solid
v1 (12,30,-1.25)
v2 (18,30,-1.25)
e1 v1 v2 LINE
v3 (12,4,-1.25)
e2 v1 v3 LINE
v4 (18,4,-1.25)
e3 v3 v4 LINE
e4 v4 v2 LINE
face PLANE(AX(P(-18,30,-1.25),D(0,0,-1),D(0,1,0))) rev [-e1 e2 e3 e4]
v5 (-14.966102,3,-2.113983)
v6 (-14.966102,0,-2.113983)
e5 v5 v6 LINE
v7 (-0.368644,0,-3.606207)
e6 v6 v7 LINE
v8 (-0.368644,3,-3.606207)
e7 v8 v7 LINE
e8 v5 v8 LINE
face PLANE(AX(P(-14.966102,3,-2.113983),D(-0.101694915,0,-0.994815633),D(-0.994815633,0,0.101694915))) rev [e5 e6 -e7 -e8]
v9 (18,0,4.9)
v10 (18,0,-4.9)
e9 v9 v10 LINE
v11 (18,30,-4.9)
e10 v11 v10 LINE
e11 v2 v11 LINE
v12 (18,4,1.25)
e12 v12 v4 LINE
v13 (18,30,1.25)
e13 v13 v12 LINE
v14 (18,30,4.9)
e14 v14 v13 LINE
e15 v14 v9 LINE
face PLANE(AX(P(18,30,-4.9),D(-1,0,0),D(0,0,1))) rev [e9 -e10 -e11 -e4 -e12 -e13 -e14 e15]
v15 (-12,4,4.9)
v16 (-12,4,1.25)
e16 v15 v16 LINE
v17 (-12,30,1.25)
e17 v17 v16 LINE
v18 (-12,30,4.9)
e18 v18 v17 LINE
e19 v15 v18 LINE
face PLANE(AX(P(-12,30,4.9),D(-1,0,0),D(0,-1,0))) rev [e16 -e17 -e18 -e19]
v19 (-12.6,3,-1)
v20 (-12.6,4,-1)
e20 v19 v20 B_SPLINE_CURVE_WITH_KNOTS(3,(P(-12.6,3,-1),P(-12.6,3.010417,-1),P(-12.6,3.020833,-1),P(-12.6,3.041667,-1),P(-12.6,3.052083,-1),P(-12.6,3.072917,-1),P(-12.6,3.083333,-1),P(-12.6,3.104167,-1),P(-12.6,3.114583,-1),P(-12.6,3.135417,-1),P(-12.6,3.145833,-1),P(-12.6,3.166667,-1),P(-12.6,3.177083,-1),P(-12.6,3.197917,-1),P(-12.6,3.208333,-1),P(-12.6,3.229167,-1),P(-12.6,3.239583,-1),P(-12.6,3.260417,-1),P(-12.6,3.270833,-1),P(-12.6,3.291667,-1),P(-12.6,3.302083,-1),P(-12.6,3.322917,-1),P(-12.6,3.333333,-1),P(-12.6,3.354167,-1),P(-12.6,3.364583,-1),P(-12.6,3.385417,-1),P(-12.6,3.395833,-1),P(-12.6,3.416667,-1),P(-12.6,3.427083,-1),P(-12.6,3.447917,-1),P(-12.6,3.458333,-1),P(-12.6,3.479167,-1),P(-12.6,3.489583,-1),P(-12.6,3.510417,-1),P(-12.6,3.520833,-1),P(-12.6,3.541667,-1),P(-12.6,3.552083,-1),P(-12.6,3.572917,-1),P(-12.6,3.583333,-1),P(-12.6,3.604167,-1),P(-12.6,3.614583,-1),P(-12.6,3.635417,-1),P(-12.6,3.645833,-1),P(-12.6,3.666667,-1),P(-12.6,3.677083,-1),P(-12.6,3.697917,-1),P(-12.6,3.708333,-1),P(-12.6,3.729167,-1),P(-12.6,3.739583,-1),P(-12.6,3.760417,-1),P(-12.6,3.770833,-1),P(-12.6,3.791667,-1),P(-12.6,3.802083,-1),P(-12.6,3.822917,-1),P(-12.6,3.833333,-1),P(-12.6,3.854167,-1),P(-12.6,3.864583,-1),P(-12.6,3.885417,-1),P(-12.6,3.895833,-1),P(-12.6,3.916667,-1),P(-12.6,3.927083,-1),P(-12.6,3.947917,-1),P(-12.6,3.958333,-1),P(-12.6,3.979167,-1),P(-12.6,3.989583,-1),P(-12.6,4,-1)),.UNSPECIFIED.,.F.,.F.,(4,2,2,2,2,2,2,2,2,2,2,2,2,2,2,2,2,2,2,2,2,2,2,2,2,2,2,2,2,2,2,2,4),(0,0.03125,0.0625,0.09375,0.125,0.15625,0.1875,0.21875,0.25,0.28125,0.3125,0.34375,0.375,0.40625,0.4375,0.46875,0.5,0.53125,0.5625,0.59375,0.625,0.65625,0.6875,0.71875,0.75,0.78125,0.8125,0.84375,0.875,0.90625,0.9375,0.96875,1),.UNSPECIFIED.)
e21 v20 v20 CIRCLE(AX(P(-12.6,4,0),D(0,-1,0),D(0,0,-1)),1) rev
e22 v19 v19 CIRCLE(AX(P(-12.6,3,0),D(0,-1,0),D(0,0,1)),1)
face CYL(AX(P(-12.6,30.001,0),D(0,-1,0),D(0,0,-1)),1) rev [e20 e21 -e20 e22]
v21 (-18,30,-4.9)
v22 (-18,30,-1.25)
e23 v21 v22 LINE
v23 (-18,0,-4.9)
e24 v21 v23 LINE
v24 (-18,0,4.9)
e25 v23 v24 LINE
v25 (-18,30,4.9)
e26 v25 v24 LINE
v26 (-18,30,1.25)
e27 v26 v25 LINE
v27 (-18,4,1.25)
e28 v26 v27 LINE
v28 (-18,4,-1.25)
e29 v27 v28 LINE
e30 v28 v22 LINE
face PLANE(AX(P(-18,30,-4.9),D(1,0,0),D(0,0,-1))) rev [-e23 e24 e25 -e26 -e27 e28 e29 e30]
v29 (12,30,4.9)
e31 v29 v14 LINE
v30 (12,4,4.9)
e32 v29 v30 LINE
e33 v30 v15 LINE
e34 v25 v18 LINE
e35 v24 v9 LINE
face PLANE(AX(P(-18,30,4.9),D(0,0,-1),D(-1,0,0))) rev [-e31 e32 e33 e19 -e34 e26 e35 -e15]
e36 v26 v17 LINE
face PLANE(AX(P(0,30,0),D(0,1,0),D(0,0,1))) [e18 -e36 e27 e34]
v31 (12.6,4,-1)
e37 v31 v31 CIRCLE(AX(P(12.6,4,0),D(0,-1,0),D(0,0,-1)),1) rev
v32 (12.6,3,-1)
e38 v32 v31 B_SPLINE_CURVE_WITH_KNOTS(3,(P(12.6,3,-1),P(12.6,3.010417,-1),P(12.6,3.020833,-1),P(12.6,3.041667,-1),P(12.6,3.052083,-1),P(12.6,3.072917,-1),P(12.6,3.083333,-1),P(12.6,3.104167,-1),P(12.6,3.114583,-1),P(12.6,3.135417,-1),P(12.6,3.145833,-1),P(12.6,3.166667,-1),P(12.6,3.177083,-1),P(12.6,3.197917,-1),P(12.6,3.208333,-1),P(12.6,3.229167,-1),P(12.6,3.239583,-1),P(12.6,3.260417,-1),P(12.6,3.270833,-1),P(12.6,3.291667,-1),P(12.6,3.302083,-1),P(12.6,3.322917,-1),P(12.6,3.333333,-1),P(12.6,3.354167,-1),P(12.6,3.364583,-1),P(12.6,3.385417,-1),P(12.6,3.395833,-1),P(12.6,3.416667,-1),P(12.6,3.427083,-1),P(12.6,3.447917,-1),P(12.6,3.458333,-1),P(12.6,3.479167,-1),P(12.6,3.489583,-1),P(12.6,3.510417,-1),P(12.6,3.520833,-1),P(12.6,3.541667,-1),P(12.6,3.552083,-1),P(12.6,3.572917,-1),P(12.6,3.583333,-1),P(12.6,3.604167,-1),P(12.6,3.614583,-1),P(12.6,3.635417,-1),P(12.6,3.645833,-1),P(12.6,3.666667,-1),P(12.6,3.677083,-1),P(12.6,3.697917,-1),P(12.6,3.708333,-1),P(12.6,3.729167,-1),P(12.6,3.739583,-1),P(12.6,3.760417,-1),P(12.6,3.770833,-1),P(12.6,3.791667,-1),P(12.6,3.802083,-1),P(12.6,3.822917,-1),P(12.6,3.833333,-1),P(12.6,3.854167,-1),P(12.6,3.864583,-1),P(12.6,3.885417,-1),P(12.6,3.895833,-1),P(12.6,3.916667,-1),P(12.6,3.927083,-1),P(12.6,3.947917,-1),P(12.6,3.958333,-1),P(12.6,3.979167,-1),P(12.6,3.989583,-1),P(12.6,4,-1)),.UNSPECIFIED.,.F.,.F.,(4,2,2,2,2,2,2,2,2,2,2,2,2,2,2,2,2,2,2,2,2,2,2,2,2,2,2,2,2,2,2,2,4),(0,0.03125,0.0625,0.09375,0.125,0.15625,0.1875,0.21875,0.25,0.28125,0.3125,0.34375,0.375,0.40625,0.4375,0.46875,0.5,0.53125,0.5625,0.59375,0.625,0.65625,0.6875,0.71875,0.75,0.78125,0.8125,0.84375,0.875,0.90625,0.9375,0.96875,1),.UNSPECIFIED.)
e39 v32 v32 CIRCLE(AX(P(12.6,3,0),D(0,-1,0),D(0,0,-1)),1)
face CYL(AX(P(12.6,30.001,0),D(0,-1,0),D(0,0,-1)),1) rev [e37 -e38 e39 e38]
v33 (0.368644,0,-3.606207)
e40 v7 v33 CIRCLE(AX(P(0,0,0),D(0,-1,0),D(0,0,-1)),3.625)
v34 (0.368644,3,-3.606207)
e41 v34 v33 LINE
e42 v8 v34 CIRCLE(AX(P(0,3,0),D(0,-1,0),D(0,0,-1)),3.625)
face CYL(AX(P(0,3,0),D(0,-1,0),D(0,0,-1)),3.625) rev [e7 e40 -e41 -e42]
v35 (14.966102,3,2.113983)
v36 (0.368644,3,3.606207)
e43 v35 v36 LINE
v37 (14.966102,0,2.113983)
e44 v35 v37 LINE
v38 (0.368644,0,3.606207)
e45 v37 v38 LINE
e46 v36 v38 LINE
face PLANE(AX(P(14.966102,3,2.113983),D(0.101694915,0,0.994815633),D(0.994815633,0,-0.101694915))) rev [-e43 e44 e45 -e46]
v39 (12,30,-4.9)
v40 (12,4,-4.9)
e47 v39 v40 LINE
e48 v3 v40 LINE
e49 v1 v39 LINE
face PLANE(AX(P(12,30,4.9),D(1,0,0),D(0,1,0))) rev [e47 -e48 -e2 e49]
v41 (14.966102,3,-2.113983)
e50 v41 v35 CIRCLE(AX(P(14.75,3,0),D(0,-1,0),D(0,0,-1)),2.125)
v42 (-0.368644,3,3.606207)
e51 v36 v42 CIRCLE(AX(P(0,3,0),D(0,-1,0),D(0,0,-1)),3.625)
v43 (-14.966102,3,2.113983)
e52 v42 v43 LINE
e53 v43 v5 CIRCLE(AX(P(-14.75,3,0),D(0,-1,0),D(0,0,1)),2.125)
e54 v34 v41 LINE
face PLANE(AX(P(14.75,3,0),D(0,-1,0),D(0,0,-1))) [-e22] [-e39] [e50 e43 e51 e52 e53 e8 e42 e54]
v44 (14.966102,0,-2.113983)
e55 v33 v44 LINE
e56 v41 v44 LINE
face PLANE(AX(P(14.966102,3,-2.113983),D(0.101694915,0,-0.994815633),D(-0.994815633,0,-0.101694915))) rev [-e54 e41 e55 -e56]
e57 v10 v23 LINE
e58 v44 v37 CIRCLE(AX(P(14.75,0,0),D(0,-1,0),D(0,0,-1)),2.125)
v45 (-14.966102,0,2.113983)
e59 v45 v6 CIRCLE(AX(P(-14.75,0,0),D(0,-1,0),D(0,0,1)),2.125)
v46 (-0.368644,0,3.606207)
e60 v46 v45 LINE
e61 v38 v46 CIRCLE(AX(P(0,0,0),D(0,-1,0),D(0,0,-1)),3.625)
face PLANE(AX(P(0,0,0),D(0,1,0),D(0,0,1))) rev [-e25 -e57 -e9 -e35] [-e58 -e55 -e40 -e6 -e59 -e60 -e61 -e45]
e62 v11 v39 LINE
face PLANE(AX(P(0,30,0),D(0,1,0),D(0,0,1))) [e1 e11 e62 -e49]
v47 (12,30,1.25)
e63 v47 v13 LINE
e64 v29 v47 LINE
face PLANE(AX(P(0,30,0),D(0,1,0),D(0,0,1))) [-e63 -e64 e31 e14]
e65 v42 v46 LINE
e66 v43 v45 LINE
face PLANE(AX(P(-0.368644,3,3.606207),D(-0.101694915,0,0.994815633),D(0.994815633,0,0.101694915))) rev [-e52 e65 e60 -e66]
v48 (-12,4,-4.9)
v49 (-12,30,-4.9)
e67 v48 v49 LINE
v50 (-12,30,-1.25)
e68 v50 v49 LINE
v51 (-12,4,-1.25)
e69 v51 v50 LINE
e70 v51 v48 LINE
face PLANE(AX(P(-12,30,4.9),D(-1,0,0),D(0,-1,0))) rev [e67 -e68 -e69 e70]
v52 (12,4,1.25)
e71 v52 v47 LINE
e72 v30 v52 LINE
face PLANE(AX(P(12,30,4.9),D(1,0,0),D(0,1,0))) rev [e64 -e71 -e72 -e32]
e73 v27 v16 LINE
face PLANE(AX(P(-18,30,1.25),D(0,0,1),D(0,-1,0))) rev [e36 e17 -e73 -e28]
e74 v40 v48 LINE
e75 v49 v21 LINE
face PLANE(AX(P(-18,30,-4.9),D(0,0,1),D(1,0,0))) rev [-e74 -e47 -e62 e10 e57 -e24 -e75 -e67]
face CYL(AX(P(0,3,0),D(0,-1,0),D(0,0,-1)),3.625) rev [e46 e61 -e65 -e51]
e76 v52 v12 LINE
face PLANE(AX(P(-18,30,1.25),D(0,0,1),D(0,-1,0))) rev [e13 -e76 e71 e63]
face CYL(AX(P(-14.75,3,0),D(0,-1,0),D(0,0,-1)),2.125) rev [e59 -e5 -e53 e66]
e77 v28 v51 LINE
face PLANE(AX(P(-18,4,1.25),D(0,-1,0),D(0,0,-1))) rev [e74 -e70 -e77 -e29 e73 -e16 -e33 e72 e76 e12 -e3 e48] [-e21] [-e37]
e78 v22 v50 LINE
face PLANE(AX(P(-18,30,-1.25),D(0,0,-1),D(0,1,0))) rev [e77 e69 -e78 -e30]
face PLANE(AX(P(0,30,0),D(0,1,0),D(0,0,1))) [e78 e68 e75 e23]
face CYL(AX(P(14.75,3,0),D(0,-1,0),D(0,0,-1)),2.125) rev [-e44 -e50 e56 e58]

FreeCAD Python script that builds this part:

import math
import FreeCAD as App
import Part
import Sketcher

V = App.Vector
Q = App.Units.Quantity

doc = App.newDocument("Part")
body = doc.addObject("PartDesign::Body", "Body")

# Sketch on XZ plane
sketch1 = body.newObject("Sketcher::SketchObject", "Sketch")
sketch1.AttachmentSupport = (doc.getObject("XZ_Plane"), [""])
sketch1.MapMode = "FlatFace"
sketch1.addGeometry([
    Part.LineSegment(V(-18, -4.9, 0), V(-18, 4.9, 0)),
    Part.LineSegment(V(-18, 4.9, 0), V(18, 4.9, 0)),
    Part.LineSegment(V(18, 4.9, 0), V(18, -4.9, 0)),
    Part.LineSegment(V(18, -4.9, 0), V(-18, -4.9, 0)),
], False)
sketch1.addConstraint([
    Sketcher.Constraint("Coincident", 0, 2, 1, 1),
    Sketcher.Constraint("Coincident", 1, 2, 2, 1),
    Sketcher.Constraint("Coincident", 2, 2, 3, 1),
    Sketcher.Constraint("Coincident", 3, 2, 0, 1),
    Sketcher.Constraint("Vertical", 0),
    Sketcher.Constraint("Horizontal", 1),
    Sketcher.Constraint("Vertical", 2),
    Sketcher.Constraint("Horizontal", 3),
    Sketcher.Constraint("Symmetric", 0, 2, 2, 2, -1, 1),
    Sketcher.Constraint("DistanceX", 1, 1, 1, 2, Q("36 mm")),
    Sketcher.Constraint("DistanceY", 0, 1, 0, 2, Q("9.8 mm")),
])
pad1 = body.newObject("PartDesign::Pad", "Pad")
pad1.Profile = sketch1
pad1.Length = 30
pad1.Reversed = True

# Sketch on YZ plane
sketch2 = body.newObject("Sketcher::SketchObject", "Sketch001")
sketch2.AttachmentSupport = (doc.getObject("YZ_Plane"), [""])
sketch2.MapMode = "FlatFace"
sketch2.AttachmentOffset = App.Placement(V(0, 0, 18), App.Rotation())
sketch2.addGeometry([
    Part.LineSegment(V(30, 1.25, 0), V(4, 1.25, 0)),
    Part.LineSegment(V(4, 1.25, 0), V(4, -1.25, 0)),
    Part.LineSegment(V(4, -1.25, 0), V(30, -1.25, 0)),
    Part.LineSegment(V(30, -1.25, 0), V(30, 1.25, 0)),
], False)
sketch2.addConstraint([
    Sketcher.Constraint("Coincident", 0, 2, 1, 1),
    Sketcher.Constraint("Coincident", 1, 2, 2, 1),
    Sketcher.Constraint("Coincident", 2, 2, 3, 1),
    Sketcher.Constraint("Coincident", 3, 2, 0, 1),
    Sketcher.Constraint("Horizontal", 0),
    Sketcher.Constraint("Vertical", 1),
    Sketcher.Constraint("Horizontal", 2),
    Sketcher.Constraint("Vertical", 3),
    Sketcher.Constraint("DistanceX", 0, 2, 0, 1, Q("26 mm")),
    Sketcher.Constraint("DistanceY", 1, 2, 1, 1, Q("2.5 mm")),
    Sketcher.Constraint("DistanceX", -1, 1, 0, 2, Q("4 mm")),
    Sketcher.Constraint("DistanceY", -1, 1, 0, 2, Q("1.25 mm")),
])
pocket1 = body.newObject("PartDesign::Pocket", "Pocket")
pocket1.Profile = sketch2
pocket1.Type = "ThroughAll"

# Sketch on XY plane
sketch3 = body.newObject("Sketcher::SketchObject", "Sketch002")
sketch3.AttachmentSupport = (doc.getObject("XY_Plane"), [""])
sketch3.MapMode = "FlatFace"
sketch3.AttachmentOffset = App.Placement(V(0, 0, -4.9), App.Rotation())
sketch3.addGeometry([
    Part.LineSegment(V(12, 30, 0), V(12, 4, 0)),
    Part.LineSegment(V(12, 4, 0), V(-12, 4, 0)),
    Part.LineSegment(V(-12, 4, 0), V(-12, 30, 0)),
    Part.LineSegment(V(-12, 30, 0), V(12, 30, 0)),
], False)
sketch3.addConstraint([
    Sketcher.Constraint("Coincident", 0, 2, 1, 1),
    Sketcher.Constraint("Coincident", 1, 2, 2, 1),
    Sketcher.Constraint("Coincident", 2, 2, 3, 1),
    Sketcher.Constraint("Coincident", 3, 2, 0, 1),
    Sketcher.Constraint("Vertical", 0),
    Sketcher.Constraint("Horizontal", 1),
    Sketcher.Constraint("Vertical", 2),
    Sketcher.Constraint("Horizontal", 3),
    Sketcher.Constraint("DistanceX", 1, 2, 1, 1, Q("24 mm")),
    Sketcher.Constraint("DistanceY", 0, 2, 0, 1, Q("26 mm")),
    Sketcher.Constraint("DistanceX", -1, 1, 0, 2, Q("12 mm")),
    Sketcher.Constraint("DistanceY", -1, 1, 0, 2, Q("4 mm")),
])
pocket2 = body.newObject("PartDesign::Pocket", "Pocket001")
pocket2.Profile = sketch3
pocket2.Type = "ThroughAll"
pocket2.Reversed = True

# Sketch on XZ plane
sketch4 = body.newObject("Sketcher::SketchObject", "Sketch003")
sketch4.AttachmentSupport = (doc.getObject("XZ_Plane"), [""])
sketch4.MapMode = "FlatFace"
sketch4.addGeometry([
    Part.LineSegment(V(14.966102, 2.113983, 0), V(0.368644, 3.606207, 0)),  # 0
    Part.ArcOfCircle(Part.Circle(V(0, 0, 0), V(0, 0, 1), 3.625), math.radians(84.163221), math.radians(95.836779)),  # 1
    Part.LineSegment(V(-0.368644, 3.606207, 0), V(-14.966102, 2.113983, 0)),  # 2
    Part.ArcOfCircle(Part.Circle(V(-14.75, 0, 0), V(0, 0, 1), 2.125), math.radians(95.83678), math.radians(264.16322)),  # 3
    Part.LineSegment(V(-14.966102, -2.113983, 0), V(-0.368644, -3.606207, 0)),  # 4
    Part.ArcOfCircle(Part.Circle(V(0, 0, 0), V(0, 0, 1), 3.625), math.radians(-95.836779), math.radians(-84.163221)),  # 5
    Part.LineSegment(V(0.368644, -3.606207, 0), V(14.966102, -2.113983, 0)),  # 6
    Part.ArcOfCircle(Part.Circle(V(14.75, 0, 0), V(0, 0, 1), 2.125), math.radians(-84.16322), math.radians(84.16322)),  # 7
], False)
sketch4.addConstraint([
    Sketcher.Constraint("Tangent", 0, 2, 1, 1),
    Sketcher.Constraint("Tangent", 1, 2, 2, 1),
    Sketcher.Constraint("Tangent", 2, 2, 3, 1),
    Sketcher.Constraint("Tangent", 3, 2, 4, 1),
    Sketcher.Constraint("Tangent", 4, 2, 5, 1),
    Sketcher.Constraint("Tangent", 5, 2, 6, 1),
    Sketcher.Constraint("Tangent", 6, 2, 7, 1),
    Sketcher.Constraint("Tangent", 7, 2, 0, 1),
    Sketcher.Constraint("Coincident", 1, 3, -1, 1),
    Sketcher.Constraint("Coincident", 5, 3, -1, 1),
    Sketcher.Constraint("Equal", 1, 5),
    Sketcher.Constraint("Equal", 3, 7),
    Sketcher.Constraint("Symmetric", 3, 3, 7, 3, -1, 1),
    Sketcher.Constraint("PointOnObject", 3, 3, -1),
    Sketcher.Constraint("Radius", 1, Q("3.625 mm")),
    Sketcher.Constraint("Radius", 3, Q("2.125 mm")),
    Sketcher.Constraint("DistanceX", 3, 3, 7, 3, Q("29.5 mm")),
])
pocket3 = body.newObject("PartDesign::Pocket", "Pocket002")
pocket3.Profile = sketch4
pocket3.Length = 3

# Sketch on XZ plane
sketch5 = body.newObject("Sketcher::SketchObject", "Sketch004")
sketch5.AttachmentSupport = (doc.getObject("XZ_Plane"), [""])
sketch5.MapMode = "FlatFace"
sketch5.AttachmentOffset = App.Placement(V(0, 0, -3), App.Rotation())
sketch5.addGeometry(Part.Circle(V(12.6, 0, 0), V(0, 0, 1), 1), False)
sketch5.addConstraint([
    Sketcher.Constraint("PointOnObject", 0, 3, -1),
    Sketcher.Constraint("Diameter", 0, Q("2 mm")),
    Sketcher.Constraint("DistanceX", -1, 1, 0, 3, Q("12.6 mm")),
])
pocket4 = body.newObject("PartDesign::Pocket", "Pocket003")
pocket4.Profile = sketch5
pocket4.Type = "UpToFirst"

# Sketch on XZ plane
sketch6 = body.newObject("Sketcher::SketchObject", "Sketch005")
sketch6.AttachmentSupport = (doc.getObject("XZ_Plane"), [""])
sketch6.MapMode = "FlatFace"
sketch6.AttachmentOffset = App.Placement(V(0, 0, -3), App.Rotation())
sketch6.addGeometry(Part.Circle(V(-12.6, 0, 0), V(0, 0, 1), 1), False)
sketch6.addConstraint([
    Sketcher.Constraint("PointOnObject", 0, 3, -1),
    Sketcher.Constraint("Diameter", 0, Q("2 mm")),
    Sketcher.Constraint("DistanceX", 0, 3, -1, 1, Q("12.6 mm")),
])
pocket5 = body.newObject("PartDesign::Pocket", "Pocket004")
pocket5.Profile = sketch6
pocket5.Type = "UpToFirst"

doc.recompute()
